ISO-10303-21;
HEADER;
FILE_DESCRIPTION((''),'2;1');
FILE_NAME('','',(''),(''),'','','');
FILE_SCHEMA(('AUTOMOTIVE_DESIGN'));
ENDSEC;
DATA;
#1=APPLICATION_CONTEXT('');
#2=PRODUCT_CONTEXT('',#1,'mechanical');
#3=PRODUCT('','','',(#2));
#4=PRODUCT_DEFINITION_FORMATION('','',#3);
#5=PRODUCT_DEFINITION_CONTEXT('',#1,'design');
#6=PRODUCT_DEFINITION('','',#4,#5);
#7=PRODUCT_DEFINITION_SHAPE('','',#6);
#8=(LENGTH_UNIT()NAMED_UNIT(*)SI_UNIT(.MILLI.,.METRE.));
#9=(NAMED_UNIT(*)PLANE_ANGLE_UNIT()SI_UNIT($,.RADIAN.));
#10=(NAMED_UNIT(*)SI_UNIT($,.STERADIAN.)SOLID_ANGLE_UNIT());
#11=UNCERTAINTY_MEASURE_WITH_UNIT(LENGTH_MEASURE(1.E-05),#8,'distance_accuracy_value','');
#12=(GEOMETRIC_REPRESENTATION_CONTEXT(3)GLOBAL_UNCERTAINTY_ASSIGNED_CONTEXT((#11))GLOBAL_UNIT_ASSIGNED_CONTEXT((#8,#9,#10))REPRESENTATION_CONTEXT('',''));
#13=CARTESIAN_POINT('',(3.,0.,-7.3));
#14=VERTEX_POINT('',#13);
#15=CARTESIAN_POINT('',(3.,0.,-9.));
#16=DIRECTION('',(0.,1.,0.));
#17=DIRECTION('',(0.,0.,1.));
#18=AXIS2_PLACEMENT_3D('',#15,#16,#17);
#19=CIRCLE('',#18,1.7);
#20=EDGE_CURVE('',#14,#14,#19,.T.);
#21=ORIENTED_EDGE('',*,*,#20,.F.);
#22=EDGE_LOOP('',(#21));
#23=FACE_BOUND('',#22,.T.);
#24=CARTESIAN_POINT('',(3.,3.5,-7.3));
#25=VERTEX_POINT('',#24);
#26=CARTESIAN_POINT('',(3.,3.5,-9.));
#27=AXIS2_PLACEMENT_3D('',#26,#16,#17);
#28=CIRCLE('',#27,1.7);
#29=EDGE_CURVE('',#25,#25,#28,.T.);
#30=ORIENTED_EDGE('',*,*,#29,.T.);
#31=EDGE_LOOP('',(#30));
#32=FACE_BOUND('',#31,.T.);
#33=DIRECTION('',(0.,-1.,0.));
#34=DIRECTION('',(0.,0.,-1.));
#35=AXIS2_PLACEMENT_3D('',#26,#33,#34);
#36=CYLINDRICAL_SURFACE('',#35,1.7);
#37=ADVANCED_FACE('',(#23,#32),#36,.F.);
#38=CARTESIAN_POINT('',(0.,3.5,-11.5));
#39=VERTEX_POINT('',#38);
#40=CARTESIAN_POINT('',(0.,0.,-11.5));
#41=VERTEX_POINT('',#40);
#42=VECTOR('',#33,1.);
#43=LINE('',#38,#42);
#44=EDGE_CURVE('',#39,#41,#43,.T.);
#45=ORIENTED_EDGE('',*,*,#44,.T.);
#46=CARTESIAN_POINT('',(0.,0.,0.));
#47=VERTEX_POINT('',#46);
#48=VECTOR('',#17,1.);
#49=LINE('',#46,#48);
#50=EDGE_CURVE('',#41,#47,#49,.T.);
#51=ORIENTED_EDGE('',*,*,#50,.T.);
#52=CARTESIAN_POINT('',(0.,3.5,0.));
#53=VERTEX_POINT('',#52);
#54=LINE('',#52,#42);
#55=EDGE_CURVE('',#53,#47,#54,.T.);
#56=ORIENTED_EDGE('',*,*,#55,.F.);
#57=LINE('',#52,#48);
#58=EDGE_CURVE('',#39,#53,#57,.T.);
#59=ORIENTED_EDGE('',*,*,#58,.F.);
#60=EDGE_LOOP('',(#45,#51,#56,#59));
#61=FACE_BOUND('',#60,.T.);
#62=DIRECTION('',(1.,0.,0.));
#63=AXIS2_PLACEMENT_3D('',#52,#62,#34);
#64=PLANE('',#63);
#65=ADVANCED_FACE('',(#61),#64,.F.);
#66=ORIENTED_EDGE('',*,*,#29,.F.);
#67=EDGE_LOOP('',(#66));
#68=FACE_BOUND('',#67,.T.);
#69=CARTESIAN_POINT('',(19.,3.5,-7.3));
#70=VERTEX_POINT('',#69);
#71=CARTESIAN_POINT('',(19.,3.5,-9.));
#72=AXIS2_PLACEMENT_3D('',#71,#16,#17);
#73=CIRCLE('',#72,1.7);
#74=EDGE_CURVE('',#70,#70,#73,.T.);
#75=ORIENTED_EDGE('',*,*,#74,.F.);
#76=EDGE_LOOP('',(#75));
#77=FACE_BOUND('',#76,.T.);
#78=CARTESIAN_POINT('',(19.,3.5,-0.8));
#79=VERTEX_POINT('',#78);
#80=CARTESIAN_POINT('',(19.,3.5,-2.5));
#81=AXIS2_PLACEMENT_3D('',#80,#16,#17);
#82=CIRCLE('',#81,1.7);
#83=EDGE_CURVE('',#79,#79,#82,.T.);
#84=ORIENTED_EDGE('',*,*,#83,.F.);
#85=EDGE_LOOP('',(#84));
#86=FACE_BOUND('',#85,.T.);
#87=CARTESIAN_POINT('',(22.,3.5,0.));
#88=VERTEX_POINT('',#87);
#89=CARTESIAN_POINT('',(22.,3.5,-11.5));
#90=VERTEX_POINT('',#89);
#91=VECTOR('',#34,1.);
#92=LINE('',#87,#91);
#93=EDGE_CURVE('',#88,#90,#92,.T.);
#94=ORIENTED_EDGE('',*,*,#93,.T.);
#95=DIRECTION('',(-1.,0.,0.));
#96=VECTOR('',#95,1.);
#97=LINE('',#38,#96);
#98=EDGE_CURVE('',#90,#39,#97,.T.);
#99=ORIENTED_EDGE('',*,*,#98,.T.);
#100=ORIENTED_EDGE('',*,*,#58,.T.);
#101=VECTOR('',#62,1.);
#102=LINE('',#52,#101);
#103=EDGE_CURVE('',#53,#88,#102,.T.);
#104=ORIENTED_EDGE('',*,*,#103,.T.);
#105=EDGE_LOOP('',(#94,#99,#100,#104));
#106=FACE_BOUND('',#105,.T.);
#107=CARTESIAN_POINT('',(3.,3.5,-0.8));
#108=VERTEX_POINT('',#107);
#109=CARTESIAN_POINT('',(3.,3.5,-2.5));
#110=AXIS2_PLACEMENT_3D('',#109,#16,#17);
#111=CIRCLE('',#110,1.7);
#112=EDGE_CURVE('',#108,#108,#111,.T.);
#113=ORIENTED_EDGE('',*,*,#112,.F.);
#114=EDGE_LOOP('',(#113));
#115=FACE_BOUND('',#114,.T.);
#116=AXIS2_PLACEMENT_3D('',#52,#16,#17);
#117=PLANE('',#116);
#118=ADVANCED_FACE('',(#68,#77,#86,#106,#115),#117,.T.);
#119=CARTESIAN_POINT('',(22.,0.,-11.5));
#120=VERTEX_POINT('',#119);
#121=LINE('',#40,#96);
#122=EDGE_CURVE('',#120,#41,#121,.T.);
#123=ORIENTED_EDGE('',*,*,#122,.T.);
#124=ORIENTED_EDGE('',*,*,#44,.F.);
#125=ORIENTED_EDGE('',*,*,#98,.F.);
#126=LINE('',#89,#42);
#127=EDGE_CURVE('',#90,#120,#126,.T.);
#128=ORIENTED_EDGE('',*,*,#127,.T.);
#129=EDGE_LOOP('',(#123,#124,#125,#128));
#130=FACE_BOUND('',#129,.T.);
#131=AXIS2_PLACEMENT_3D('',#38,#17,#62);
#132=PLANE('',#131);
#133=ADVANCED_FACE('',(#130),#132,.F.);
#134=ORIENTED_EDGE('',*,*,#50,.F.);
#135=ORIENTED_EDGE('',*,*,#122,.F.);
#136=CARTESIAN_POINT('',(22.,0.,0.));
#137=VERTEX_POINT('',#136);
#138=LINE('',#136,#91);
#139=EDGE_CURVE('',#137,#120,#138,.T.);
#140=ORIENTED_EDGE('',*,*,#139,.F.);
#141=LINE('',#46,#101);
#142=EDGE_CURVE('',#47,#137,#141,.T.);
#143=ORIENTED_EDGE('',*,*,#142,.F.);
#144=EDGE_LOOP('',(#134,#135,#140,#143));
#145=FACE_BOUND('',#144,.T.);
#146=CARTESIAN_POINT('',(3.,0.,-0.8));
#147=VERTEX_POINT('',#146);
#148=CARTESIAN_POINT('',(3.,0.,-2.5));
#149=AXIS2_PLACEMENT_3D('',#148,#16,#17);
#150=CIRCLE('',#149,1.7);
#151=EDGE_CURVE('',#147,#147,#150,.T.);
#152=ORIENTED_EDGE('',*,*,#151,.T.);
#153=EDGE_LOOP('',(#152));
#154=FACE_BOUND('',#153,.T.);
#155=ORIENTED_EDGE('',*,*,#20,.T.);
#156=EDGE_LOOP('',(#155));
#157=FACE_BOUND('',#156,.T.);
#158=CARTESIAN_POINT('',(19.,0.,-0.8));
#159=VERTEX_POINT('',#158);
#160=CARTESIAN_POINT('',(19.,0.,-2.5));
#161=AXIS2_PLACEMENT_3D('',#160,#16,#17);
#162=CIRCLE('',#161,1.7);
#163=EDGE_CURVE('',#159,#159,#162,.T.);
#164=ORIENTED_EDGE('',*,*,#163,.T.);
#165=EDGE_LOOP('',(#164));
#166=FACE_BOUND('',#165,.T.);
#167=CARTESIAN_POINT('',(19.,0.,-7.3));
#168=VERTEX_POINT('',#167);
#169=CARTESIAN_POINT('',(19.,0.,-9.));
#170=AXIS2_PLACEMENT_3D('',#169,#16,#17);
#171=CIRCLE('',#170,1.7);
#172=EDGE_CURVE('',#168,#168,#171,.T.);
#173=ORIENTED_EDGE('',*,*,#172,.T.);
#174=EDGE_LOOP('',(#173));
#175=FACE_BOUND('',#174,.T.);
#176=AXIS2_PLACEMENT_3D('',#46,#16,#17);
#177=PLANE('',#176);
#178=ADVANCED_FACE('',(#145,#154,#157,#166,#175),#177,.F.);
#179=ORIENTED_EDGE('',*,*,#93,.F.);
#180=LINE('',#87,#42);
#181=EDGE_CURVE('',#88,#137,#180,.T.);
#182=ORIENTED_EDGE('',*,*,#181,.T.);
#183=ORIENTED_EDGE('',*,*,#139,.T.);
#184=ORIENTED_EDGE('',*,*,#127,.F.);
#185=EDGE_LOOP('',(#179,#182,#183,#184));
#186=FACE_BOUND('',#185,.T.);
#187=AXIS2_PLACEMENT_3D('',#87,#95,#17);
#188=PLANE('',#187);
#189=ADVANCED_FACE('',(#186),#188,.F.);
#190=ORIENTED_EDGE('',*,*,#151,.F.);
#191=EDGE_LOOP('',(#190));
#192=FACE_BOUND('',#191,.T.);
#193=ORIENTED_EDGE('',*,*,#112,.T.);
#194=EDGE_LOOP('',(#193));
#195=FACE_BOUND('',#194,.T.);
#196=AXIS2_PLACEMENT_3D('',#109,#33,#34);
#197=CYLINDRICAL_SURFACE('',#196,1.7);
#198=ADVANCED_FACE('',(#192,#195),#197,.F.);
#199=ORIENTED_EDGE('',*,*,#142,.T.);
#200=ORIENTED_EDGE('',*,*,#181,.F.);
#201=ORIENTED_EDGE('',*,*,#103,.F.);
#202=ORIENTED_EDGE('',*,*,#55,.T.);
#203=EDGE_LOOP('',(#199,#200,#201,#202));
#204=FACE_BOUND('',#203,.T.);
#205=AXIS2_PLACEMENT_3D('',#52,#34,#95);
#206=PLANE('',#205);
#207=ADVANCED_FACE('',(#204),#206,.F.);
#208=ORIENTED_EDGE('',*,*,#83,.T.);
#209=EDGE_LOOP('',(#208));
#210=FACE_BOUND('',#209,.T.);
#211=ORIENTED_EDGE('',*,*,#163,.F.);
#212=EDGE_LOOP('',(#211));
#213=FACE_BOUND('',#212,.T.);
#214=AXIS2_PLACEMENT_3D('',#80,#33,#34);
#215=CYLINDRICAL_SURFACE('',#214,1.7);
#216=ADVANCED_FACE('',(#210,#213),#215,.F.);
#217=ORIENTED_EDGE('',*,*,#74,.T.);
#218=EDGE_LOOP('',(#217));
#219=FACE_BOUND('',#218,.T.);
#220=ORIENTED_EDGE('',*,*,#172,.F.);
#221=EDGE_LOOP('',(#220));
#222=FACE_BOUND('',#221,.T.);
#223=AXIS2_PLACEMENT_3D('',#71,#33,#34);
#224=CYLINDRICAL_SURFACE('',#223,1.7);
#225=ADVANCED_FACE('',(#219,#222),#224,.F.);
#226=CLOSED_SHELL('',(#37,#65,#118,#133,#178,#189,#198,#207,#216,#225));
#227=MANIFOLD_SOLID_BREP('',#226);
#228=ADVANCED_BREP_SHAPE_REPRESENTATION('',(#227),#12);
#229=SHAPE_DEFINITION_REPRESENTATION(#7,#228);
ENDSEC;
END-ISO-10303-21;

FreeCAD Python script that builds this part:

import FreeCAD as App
import Part
import Sketcher


def add_polygon(sketch, points):
    """Adds a closed chain of lines whose ends are joined by coincident constraints."""
    first, n = sketch.GeometryCount, len(points)
    for a, b in zip(points, points[1:] + points[:1]):
        sketch.addGeometry(Part.LineSegment(App.Vector(*a, 0), App.Vector(*b, 0)), False)
    for i in range(n):
        sketch.addConstraint(Sketcher.Constraint("Coincident", first + i, 2, first + (i + 1) % n, 1))

doc = App.newDocument("Part")
params = doc.addObject("Spreadsheet::Sheet", "Params")
for row, (alias, value) in enumerate([
    ("sketch1_diameter", "3.4 mm"),
    ("sketch1_width", "22 mm"),
    ("sketch1_height", "11.5 mm"),
    ("pad1_length", "3.5 mm"),
], start=1):
    params.set(f"A{row}", alias)
    params.set(f"B{row}", "=" + value)
    params.setAlias(f"B{row}", alias)

body = doc.addObject("PartDesign::Body", "Body")

# Sketch on XZ plane
sketch1 = body.newObject("Sketcher::SketchObject", "Sketch")
sketch1.AttachmentSupport = (doc.getObject("XZ_Plane"), [""])
sketch1.MapMode = "FlatFace"
add_polygon(sketch1, [(0, -11.5), (0, 0), (22, 0), (22, -11.5)])  # lines 0-3
sketch1.addGeometry(Part.Circle(App.Vector(3, -2.5, 0), App.Vector(0, 0, 1), 1.7), False)  # 4
sketch1.addGeometry(Part.Circle(App.Vector(19, -2.5, 0), App.Vector(0, 0, 1), 1.7), False)  # 5
sketch1.addGeometry(Part.Circle(App.Vector(3, -9, 0), App.Vector(0, 0, 1), 1.7), False)  # 6
sketch1.addGeometry(Part.Circle(App.Vector(19, -9, 0), App.Vector(0, 0, 1), 1.7), False)  # 7
sketch1.addConstraint(Sketcher.Constraint("Vertical", 0))
sketch1.addConstraint(Sketcher.Constraint("Horizontal", 1))
sketch1.addConstraint(Sketcher.Constraint("Vertical", 2))
sketch1.addConstraint(Sketcher.Constraint("Horizontal", 3))
sketch1.addConstraint(Sketcher.Constraint("Coincident", 0, 2, -1, 1))
sketch1.addConstraint(Sketcher.Constraint("Equal", 4, 5))
sketch1.addConstraint(Sketcher.Constraint("Equal", 5, 6))
sketch1.addConstraint(Sketcher.Constraint("Equal", 6, 7))
sketch1.addConstraint(Sketcher.Constraint("Horizontal", 4, 3, 5, 3))
sketch1.addConstraint(Sketcher.Constraint("Horizontal", 6, 3, 7, 3))
sketch1.addConstraint(Sketcher.Constraint("Vertical", 4, 3, 6, 3))
sketch1.addConstraint(Sketcher.Constraint("Vertical", 5, 3, 7, 3))
sketch1.addConstraint(Sketcher.Constraint("Diameter", 4, 3.4))
sketch1.addConstraint(Sketcher.Constraint("DistanceX", 1, 1, 1, 2, 22.0))
sketch1.addConstraint(Sketcher.Constraint("DistanceY", 0, 1, 0, 2, 11.5))
sketch1.addConstraint(Sketcher.Constraint("DistanceX", -1, 1, 4, 3, 3.0))
sketch1.addConstraint(Sketcher.Constraint("DistanceX", -1, 1, 5, 3, 19.0))
sketch1.addConstraint(Sketcher.Constraint("DistanceY", 6, 3, -1, 1, 9.0))
sketch1.addConstraint(Sketcher.Constraint("DistanceY", 2, 2, 5, 3, 9.0))
sketch1.setExpression("Constraints[16]", "Params.sketch1_diameter")
sketch1.setExpression("Constraints[17]", "Params.sketch1_width")
sketch1.setExpression("Constraints[18]", "Params.sketch1_height")
pad1 = body.newObject("PartDesign::Pad", "Pad")
pad1.Profile = sketch1
pad1.setExpression("Length", "Params.pad1_length")
pad1.Reversed = True

doc.recompute()
